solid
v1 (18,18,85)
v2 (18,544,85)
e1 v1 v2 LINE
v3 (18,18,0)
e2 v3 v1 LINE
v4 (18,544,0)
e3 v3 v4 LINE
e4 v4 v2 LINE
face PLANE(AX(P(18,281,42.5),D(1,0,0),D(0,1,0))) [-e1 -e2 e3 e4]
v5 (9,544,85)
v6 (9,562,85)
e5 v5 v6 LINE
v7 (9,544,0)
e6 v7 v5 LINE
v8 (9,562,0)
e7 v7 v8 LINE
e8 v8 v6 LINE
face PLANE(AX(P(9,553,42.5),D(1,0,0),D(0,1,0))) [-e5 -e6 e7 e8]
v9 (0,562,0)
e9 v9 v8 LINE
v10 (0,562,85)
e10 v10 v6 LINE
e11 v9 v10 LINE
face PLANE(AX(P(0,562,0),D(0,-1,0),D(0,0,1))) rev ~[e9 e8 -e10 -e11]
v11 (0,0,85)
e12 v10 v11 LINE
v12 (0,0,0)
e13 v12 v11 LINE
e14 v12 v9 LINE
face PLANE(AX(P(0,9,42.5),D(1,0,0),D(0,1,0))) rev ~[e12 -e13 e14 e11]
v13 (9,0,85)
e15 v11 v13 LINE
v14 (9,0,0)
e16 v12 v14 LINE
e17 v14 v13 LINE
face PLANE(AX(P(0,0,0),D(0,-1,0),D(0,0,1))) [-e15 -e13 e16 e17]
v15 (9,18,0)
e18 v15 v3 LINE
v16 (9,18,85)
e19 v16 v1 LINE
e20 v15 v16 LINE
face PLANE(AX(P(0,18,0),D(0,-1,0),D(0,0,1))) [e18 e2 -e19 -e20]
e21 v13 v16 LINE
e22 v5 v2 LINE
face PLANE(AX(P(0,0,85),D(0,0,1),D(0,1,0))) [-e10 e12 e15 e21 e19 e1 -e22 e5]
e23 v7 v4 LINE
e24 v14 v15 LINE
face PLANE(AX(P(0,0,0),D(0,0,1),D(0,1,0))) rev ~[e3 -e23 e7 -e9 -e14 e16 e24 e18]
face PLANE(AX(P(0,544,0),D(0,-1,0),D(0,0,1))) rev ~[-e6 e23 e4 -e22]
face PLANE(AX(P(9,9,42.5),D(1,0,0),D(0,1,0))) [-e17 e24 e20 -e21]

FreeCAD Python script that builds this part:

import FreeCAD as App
import Part
import Sketcher
from FreeCAD import Vector


def add_polygon(sketch, points):
    """Adds a closed chain of lines whose ends are joined by coincident constraints."""
    first, n = sketch.GeometryCount, len(points)
    for a, b in zip(points, points[1:] + points[:1]):
        sketch.addGeometry(Part.LineSegment(App.Vector(*a, 0), App.Vector(*b, 0)), False)
    for i in range(n):
        sketch.addConstraint(Sketcher.Constraint("Coincident", first + i, 2, first + (i + 1) % n, 1))

doc = App.newDocument("Part")
body = doc.addObject("PartDesign::Body", "Body")

sketch1 = doc.addObject("Sketcher::SketchObject", "Sketch")
body.addObject(sketch1)
sketch1.AttachmentSupport = (doc.YZ_Plane, [""])
sketch1.MapMode = "FlatFace"
add_polygon(sketch1, [(18, 85), (18, 0), (544, 0), (544, 85)])
sketch1.addConstraint([
    Sketcher.Constraint("Vertical", 0),
    Sketcher.Constraint("Horizontal", 1),
    Sketcher.Constraint("Vertical", 2),
    Sketcher.Constraint("Horizontal", 3),
    Sketcher.Constraint("PointOnObject", 0, 2, -1),
    Sketcher.Constraint("DistanceX", 1, 1, 1, 2, 526.0),
    Sketcher.Constraint("DistanceY", 0, 2, 0, 1, 85.0),
    Sketcher.Constraint("DistanceX", -1, 1, 0, 2, 18.0),
])
pad1 = doc.addObject("PartDesign::Pad", "Pad")
body.addObject(pad1)
pad1.Profile = sketch1
pad1.Length = 18

sketch2 = doc.addObject("Sketcher::SketchObject", "Sketch001")
body.addObject(sketch2)
sketch2.AttachmentSupport = (doc.YZ_Plane, [""])
sketch2.MapMode = "FlatFace"
add_polygon(sketch2, [(0, 85), (0, 0), (18, 0), (18, 85)])
add_polygon(sketch2, [(544, 85), (544, 0), (562, 0), (562, 85)])
sketch2.addConstraint([
    Sketcher.Constraint("Vertical", 0),
    Sketcher.Constraint("Horizontal", 1),
    Sketcher.Constraint("Vertical", 2),
    Sketcher.Constraint("Horizontal", 3),
    Sketcher.Constraint("Vertical", 4),
    Sketcher.Constraint("Horizontal", 5),
    Sketcher.Constraint("Vertical", 6),
    Sketcher.Constraint("Horizontal", 7),
    Sketcher.Constraint("Coincident", 0, 2, -1, 1),
    Sketcher.Constraint("PointOnObject", 4, 2, -1),
    Sketcher.Constraint("Horizontal", 3, 2, 6, 2),
    Sketcher.Constraint("Equal", 3, 5),
    Sketcher.Constraint("DistanceX", 1, 1, 1, 2, 18.0),
    Sketcher.Constraint("DistanceY", 0, 2, 0, 1, 85.0),
    Sketcher.Constraint("DistanceX", -1, 1, 4, 2, 544.0),
])
pad2 = doc.addObject("PartDesign::Pad", "Pad001")
body.addObject(pad2)
pad2.Profile = sketch2
pad2.Length = 9

doc.recompute()
